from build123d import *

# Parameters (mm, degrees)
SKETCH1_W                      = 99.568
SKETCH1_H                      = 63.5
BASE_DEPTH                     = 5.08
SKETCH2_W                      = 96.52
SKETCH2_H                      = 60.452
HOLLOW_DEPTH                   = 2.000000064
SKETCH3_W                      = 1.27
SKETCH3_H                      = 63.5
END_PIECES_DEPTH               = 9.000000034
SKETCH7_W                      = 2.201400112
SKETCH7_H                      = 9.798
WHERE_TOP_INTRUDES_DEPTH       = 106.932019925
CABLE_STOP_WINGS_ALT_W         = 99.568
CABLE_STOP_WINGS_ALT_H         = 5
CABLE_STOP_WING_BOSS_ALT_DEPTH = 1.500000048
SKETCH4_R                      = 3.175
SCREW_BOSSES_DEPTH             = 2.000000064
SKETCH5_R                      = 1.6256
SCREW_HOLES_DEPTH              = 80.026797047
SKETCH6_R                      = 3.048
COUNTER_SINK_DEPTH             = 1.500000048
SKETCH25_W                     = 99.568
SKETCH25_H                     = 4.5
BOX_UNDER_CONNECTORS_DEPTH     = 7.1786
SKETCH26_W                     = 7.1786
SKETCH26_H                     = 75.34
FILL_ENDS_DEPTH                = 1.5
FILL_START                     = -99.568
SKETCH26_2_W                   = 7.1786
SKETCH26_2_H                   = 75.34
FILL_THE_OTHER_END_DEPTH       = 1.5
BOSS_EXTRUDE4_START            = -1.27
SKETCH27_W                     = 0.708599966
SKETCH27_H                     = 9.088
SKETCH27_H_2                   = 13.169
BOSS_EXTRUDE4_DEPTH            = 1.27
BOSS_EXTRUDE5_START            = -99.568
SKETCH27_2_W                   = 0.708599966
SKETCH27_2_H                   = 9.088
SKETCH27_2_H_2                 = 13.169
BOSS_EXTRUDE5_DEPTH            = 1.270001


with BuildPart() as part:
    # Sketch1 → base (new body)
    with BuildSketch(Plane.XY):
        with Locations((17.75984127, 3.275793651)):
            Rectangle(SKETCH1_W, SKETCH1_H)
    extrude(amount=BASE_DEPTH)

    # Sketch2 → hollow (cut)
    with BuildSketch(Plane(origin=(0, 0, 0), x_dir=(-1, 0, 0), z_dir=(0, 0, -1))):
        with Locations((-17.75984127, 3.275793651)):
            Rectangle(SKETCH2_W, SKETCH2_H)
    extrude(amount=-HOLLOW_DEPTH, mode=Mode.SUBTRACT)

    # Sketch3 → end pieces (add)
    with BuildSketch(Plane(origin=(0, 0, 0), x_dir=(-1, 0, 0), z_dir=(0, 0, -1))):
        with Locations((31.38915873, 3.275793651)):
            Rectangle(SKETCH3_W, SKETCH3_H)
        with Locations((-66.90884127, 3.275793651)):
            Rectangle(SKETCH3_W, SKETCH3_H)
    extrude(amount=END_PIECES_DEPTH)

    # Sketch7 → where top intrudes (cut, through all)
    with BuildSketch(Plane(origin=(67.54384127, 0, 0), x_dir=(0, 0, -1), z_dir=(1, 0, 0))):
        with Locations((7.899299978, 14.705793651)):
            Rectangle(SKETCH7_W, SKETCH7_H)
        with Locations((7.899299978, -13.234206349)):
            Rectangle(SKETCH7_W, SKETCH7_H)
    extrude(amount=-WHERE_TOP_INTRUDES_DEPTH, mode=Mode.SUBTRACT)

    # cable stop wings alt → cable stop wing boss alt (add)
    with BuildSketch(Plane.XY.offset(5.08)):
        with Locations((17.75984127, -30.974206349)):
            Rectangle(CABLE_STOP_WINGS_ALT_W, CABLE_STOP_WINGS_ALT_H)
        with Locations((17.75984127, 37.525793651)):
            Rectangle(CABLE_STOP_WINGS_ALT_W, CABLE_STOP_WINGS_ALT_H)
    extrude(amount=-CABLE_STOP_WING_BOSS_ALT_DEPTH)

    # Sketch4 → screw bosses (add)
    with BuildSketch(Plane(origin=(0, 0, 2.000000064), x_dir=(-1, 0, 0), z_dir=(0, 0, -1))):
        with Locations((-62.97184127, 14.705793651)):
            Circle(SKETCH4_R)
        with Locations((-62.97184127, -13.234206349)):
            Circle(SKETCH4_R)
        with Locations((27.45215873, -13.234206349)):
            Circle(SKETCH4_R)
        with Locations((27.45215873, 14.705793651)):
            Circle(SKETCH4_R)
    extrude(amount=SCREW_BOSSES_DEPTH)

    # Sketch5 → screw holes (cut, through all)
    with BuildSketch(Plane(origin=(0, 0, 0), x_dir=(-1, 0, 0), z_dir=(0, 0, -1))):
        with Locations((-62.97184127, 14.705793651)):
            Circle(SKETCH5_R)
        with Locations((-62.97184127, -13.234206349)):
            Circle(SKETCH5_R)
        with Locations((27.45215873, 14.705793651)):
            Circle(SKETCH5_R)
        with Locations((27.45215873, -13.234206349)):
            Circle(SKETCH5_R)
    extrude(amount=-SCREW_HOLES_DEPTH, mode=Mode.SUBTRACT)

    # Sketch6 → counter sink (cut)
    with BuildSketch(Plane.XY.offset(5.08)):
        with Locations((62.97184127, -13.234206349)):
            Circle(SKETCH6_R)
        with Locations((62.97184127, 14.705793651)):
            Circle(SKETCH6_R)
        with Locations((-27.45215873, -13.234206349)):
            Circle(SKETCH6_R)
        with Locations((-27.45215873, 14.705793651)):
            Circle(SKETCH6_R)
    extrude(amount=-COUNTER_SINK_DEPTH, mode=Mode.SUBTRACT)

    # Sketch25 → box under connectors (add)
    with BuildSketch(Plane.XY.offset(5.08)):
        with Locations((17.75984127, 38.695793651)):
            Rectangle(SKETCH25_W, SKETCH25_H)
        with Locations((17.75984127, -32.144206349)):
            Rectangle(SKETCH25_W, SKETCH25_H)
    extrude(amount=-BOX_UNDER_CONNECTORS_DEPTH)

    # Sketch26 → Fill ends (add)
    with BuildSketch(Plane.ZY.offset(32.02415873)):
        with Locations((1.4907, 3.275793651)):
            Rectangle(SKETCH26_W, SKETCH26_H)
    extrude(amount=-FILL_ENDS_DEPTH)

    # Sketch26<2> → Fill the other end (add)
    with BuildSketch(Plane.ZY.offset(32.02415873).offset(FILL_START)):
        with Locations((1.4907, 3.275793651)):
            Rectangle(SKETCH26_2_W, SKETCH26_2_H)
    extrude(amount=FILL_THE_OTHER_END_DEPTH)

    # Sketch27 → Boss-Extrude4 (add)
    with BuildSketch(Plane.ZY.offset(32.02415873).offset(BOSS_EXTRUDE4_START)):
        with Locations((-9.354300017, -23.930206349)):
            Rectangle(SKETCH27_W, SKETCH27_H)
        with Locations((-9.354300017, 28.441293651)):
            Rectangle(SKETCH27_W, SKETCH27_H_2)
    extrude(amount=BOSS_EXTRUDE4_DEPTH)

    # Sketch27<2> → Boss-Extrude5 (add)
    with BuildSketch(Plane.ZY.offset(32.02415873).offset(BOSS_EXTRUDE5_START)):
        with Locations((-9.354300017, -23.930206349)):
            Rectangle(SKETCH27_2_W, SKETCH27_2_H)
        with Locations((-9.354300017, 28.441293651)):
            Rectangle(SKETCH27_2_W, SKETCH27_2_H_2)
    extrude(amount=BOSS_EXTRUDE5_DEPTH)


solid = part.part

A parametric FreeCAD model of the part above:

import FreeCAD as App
import Part
import Sketcher
from FreeCAD import Vector
Q = App.Units.Quantity

doc = App.newDocument("Part")
body = doc.addObject("PartDesign::Body", "Body")

sketch1 = body.newObject("Sketcher::SketchObject", "Sketch")
sketch1.AttachmentSupport = (doc.getObject("XY_Plane"), [""])
sketch1.MapMode = "FlatFace"
sketch1.addGeometry([
    Part.LineSegment(Vector(-32, 35, 0), Vector(-32, -28, 0)),
    Part.LineSegment(Vector(-32, -28, 0), Vector(68, -28, 0)),
    Part.LineSegment(Vector(68, -28, 0), Vector(68, 35, 0)),
    Part.LineSegment(Vector(68, 35, 0), Vector(-32, 35, 0)),
], False)
sketch1.addConstraint([
    Sketcher.Constraint("Coincident", 0, 2, 1, 1),
    Sketcher.Constraint("Coincident", 1, 2, 2, 1),
    Sketcher.Constraint("Coincident", 2, 2, 3, 1),
    Sketcher.Constraint("Coincident", 3, 2, 0, 1),
    Sketcher.Constraint("Vertical", 0),
    Sketcher.Constraint("Horizontal", 1),
    Sketcher.Constraint("Vertical", 2),
    Sketcher.Constraint("Horizontal", 3),
    Sketcher.Constraint("DistanceY", 0, 2, 0, 1, Q("2.5 in")),
    Sketcher.Constraint("DistanceX", 1, 1, 1, 2, Q("3.92 in")),
    Sketcher.Constraint("DistanceX", 0, 2, -1, 1, Q("32.024159 mm")),
    Sketcher.Constraint("DistanceY", 0, 2, -1, 1, Q("28.474206 mm")),
])
pad1 = body.newObject("PartDesign::Pad", "Pad")
pad1.Profile = sketch1
pad1.Length = Q("0.2 in")

sketch2 = body.newObject("Sketcher::SketchObject", "Sketch001")
sketch2.AttachmentSupport = (doc.getObject("XY_Plane"), [""])
sketch2.MapMode = "FlatFace"
sketch2.addGeometry([
    Part.LineSegment(Vector(66, 34, 0), Vector(66, -27, 0)),
    Part.LineSegment(Vector(66, -27, 0), Vector(-31, -27, 0)),
    Part.LineSegment(Vector(-31, -27, 0), Vector(-31, 34, 0)),
    Part.LineSegment(Vector(-31, 34, 0), Vector(66, 34, 0)),
], False)
sketch2.addConstraint([
    Sketcher.Constraint("Coincident", 0, 2, 1, 1),
    Sketcher.Constraint("Coincident", 1, 2, 2, 1),
    Sketcher.Constraint("Coincident", 2, 2, 3, 1),
    Sketcher.Constraint("Coincident", 3, 2, 0, 1),
    Sketcher.Constraint("Vertical", 0),
    Sketcher.Constraint("Horizontal", 1),
    Sketcher.Constraint("Vertical", 2),
    Sketcher.Constraint("Horizontal", 3),
    Sketcher.Constraint("DistanceX", 1, 2, 1, 1, Q("3.8 in")),
    Sketcher.Constraint("DistanceY", 0, 2, 0, 1, Q("2.38 in")),
    Sketcher.Constraint("DistanceX", -1, 1, 0, 2, Q("66.019841 mm")),
    Sketcher.Constraint("DistanceY", 0, 2, -1, 1, Q("26.950206 mm")),
])
pocket1 = body.newObject("PartDesign::Pocket", "Pocket")
pocket1.Profile = sketch2
pocket1.Length = 2
pocket1.Reversed = True

sketch3 = body.newObject("Sketcher::SketchObject", "Sketch002")
sketch3.AttachmentSupport = (doc.getObject("XY_Plane"), [""])
sketch3.MapMode = "FlatFace"
sketch3.addGeometry([
    Part.LineSegment(Vector(-30.8, 35, 0), Vector(-30.8, -28.5, 0)),
    Part.LineSegment(Vector(-30.8, -28.5, 0), Vector(-32, -28.5, 0)),
    Part.LineSegment(Vector(-32, -28.5, 0), Vector(-32, 35, 0)),
    Part.LineSegment(Vector(-32, 35, 0), Vector(-30.8, 35, 0)),
    Part.LineSegment(Vector(67.5, 35, 0), Vector(67.5, -28.5, 0)),
    Part.LineSegment(Vector(67.5, -28.5, 0), Vector(66.3, -28.5, 0)),
    Part.LineSegment(Vector(66.3, -28.5, 0), Vector(66.3, 35, 0)),
    Part.LineSegment(Vector(66.3, 35, 0), Vector(67.5, 35, 0)),
], False)
sketch3.addConstraint([
    Sketcher.Constraint("Coincident", 0, 2, 1, 1),
    Sketcher.Constraint("Coincident", 1, 2, 2, 1),
    Sketcher.Constraint("Coincident", 2, 2, 3, 1),
    Sketcher.Constraint("Coincident", 3, 2, 0, 1),
    Sketcher.Constraint("Coincident", 4, 2, 5, 1),
    Sketcher.Constraint("Coincident", 5, 2, 6, 1),
    Sketcher.Constraint("Coincident", 6, 2, 7, 1),
    Sketcher.Constraint("Coincident", 7, 2, 4, 1),
    Sketcher.Constraint("Vertical", 0),
    Sketcher.Constraint("Horizontal", 1),
    Sketcher.Constraint("Vertical", 2),
    Sketcher.Constraint("Horizontal", 3),
    Sketcher.Constraint("Vertical", 4),
    Sketcher.Constraint("Horizontal", 5),
    Sketcher.Constraint("Vertical", 6),
    Sketcher.Constraint("Horizontal", 7),
    Sketcher.Constraint("Horizontal", 1, 2, 4, 2),
    Sketcher.Constraint("Horizontal", 3, 2, 6, 2),
    Sketcher.Constraint("Equal", 3, 5),
    Sketcher.Constraint("DistanceY", 0, 2, 0, 1, Q("2.5 in")),
    Sketcher.Constraint("DistanceX", 1, 2, 1, 1, Q("0.05 in")),
    Sketcher.Constraint("DistanceX", 0, 2, 4, 2, Q("3.87 in")),
    Sketcher.Constraint("DistanceX", 0, 2, -1, 1, Q("30.754159 mm")),
    Sketcher.Constraint("DistanceY", 0, 2, -1, 1, Q("28.474206 mm")),
])
pad2 = body.newObject("PartDesign::Pad", "Pad001")
pad2.Profile = sketch3
pad2.Length = 9
pad2.Reversed = True

sketch4 = body.newObject("Sketcher::SketchObject", "Sketch003")
sketch4.AttachmentSupport = (doc.getObject("YZ_Plane"), [""])
sketch4.MapMode = "FlatFace"
sketch4.AttachmentOffset = App.Placement(Vector(0, 0, 67.543841), App.Rotation())
sketch4.addGeometry([
    Part.LineSegment(Vector(19.6, -6.8, 0), Vector(9.8, -6.8, 0)),
    Part.LineSegment(Vector(9.8, -6.8, 0), Vector(9.8, -9, 0)),
    Part.LineSegment(Vector(9.8, -9, 0), Vector(19.6, -9, 0)),
    Part.LineSegment(Vector(19.6, -9, 0), Vector(19.6, -6.8, 0)),
    Part.LineSegment(Vector(-8.3, -6.8, 0), Vector(-18.1, -6.8, 0)),
    Part.LineSegment(Vector(-18.1, -6.8, 0), Vector(-18.1, -9, 0)),
    Part.LineSegment(Vector(-18.1, -9, 0), Vector(-8.3, -9, 0)),
    Part.LineSegment(Vector(-8.3, -9, 0), Vector(-8.3, -6.8, 0)),
], False)
sketch4.addConstraint([
    Sketcher.Constraint("Coincident", 0, 2, 1, 1),
    Sketcher.Constraint("Coincident", 1, 2, 2, 1),
    Sketcher.Constraint("Coincident", 2, 2, 3, 1),
    Sketcher.Constraint("Coincident", 3, 2, 0, 1),
    Sketcher.Constraint("Coincident", 4, 2, 5, 1),
    Sketcher.Constraint("Coincident", 5, 2, 6, 1),
    Sketcher.Constraint("Coincident", 6, 2, 7, 1),
    Sketcher.Constraint("Coincident", 7, 2, 4, 1),
    Sketcher.Constraint("Horizontal", 0),
    Sketcher.Constraint("Vertical", 1),
    Sketcher.Constraint("Horizontal", 2),
    Sketcher.Constraint("Vertical", 3),
    Sketcher.Constraint("Horizontal", 4),
    Sketcher.Constraint("Vertical", 5),
    Sketcher.Constraint("Horizontal", 6),
    Sketcher.Constraint("Vertical", 7),
    Sketcher.Constraint("Horizontal", 3, 2, 4, 2),
    Sketcher.Constraint("Horizontal", 2, 2, 5, 2),
    Sketcher.Constraint("Equal", 2, 4),
    Sketcher.Constraint("DistanceX", 4, 2, 0, 2, Q("1.1 in")),
    Sketcher.Constraint("DistanceX", 0, 2, 0, 1, Q("9.798 mm")),
    Sketcher.Constraint("DistanceY", 1, 2, 1, 1, Q("2.2014 mm")),
    Sketcher.Constraint("DistanceY", 0, 2, -1, 1, Q("6.7986 mm")),
    Sketcher.Constraint("DistanceX", -1, 1, 0, 2, Q("9.806794 mm")),
])
pocket2 = body.newObject("PartDesign::Pocket", "Pocket001")
pocket2.Profile = sketch4
pocket2.Type = "ThroughAll"

sketch5 = body.newObject("Sketcher::SketchObject", "Sketch004")
sketch5.AttachmentSupport = (doc.getObject("XY_Plane"), [""])
sketch5.MapMode = "FlatFace"
sketch5.AttachmentOffset = App.Placement(Vector(0, 0, 0.2 * 25.4), App.Rotation())
sketch5.addGeometry([
    Part.LineSegment(Vector(-32, -28, 0), Vector(-32, -33, 0)),
    Part.LineSegment(Vector(-32, -33, 0), Vector(68, -33, 0)),
    Part.LineSegment(Vector(68, -33, 0), Vector(68, -28, 0)),
    Part.LineSegment(Vector(68, -28, 0), Vector(-32, -28, 0)),
    Part.LineSegment(Vector(-32, 40, 0), Vector(-32, 35, 0)),
    Part.LineSegment(Vector(-32, 35, 0), Vector(68, 35, 0)),
    Part.LineSegment(Vector(68, 35, 0), Vector(68, 40, 0)),
    Part.LineSegment(Vector(68, 40, 0), Vector(-32, 40, 0)),
], False)
sketch5.addConstraint([
    Sketcher.Constraint("Coincident", 0, 2, 1, 1),
    Sketcher.Constraint("Coincident", 1, 2, 2, 1),
    Sketcher.Constraint("Coincident", 2, 2, 3, 1),
    Sketcher.Constraint("Coincident", 3, 2, 0, 1),
    Sketcher.Constraint("Coincident", 4, 2, 5, 1),
    Sketcher.Constraint("Coincident", 5, 2, 6, 1),
    Sketcher.Constraint("Coincident", 6, 2, 7, 1),
    Sketcher.Constraint("Coincident", 7, 2, 4, 1),
    Sketcher.Constraint("Vertical", 0),
    Sketcher.Constraint("Horizontal", 1),
    Sketcher.Constraint("Vertical", 2),
    Sketcher.Constraint("Horizontal", 3),
    Sketcher.Constraint("Vertical", 4),
    Sketcher.Constraint("Horizontal", 5),
    Sketcher.Constraint("Vertical", 6),
    Sketcher.Constraint("Horizontal", 7),
    Sketcher.Constraint("Vertical", 3, 2, 4, 2),
    Sketcher.Constraint("Vertical", 2, 2, 5, 2),
    Sketcher.Constraint("Equal", 2, 4),
    Sketcher.Constraint("DistanceX", 1, 1, 1, 2, Q("3.92 in")),
    Sketcher.Constraint("DistanceY", 3, 2, 4, 2, Q("2.5 in")),
    Sketcher.Constraint("DistanceY", 0, 2, 0, 1, Q("5 mm")),
    Sketcher.Constraint("DistanceX", 0, 2, -1, 1, Q("32.024159 mm")),
    Sketcher.Constraint("DistanceY", 0, 2, -1, 1, Q("33.474206 mm")),
])
pad3 = body.newObject("PartDesign::Pad", "Pad002")
pad3.Profile = sketch5
pad3.Length = 1.5
pad3.Reversed = True

sketch6 = body.newObject("Sketcher::SketchObject", "Sketch005")
sketch6.AttachmentSupport = (doc.getObject("XY_Plane"), [""])
sketch6.MapMode = "FlatFace"
sketch6.AttachmentOffset = App.Placement(Vector(0, 0, 2), App.Rotation())
sketch6.addGeometry([
    Part.Circle(Vector(63, 14.7, 0), Vector(0, 0, 1), 3.2),
    Part.Circle(Vector(63, -13.2, 0), Vector(0, 0, 1), 3.2),
    Part.Circle(Vector(-27.5, -13.2, 0), Vector(0, 0, 1), 3.2),
    Part.Circle(Vector(-27.5, 14.7, 0), Vector(0, 0, 1), 3.2),
], False)
sketch6.addConstraint([
    Sketcher.Constraint("Equal", 0, 1),
    Sketcher.Constraint("Equal", 1, 2),
    Sketcher.Constraint("Equal", 2, 3),
    Sketcher.Constraint("Horizontal", 1, 3, 2, 3),
    Sketcher.Constraint("Horizontal", 0, 3, 3, 3),
    Sketcher.Constraint("Vertical", 0, 3, 1, 3),
    Sketcher.Constraint("Vertical", 2, 3, 3, 3),
    Sketcher.Constraint("Diameter", 0, Q("0.25 in")),
    Sketcher.Constraint("DistanceY", 1, 3, 0, 3, Q("1.1 in")),
    Sketcher.Constraint("DistanceX", 2, 3, 1, 3, Q("3.56 in")),
    Sketcher.Constraint("DistanceX", -1, 1, 0, 3, Q("62.971841 mm")),
    Sketcher.Constraint("DistanceY", -1, 1, 0, 3, Q("14.705794 mm")),
])
pad4 = body.newObject("PartDesign::Pad", "Pad003")
pad4.Profile = sketch6
pad4.Length = 2
pad4.Reversed = True

sketch7 = body.newObject("Sketcher::SketchObject", "Sketch006")
sketch7.AttachmentSupport = (doc.getObject("XY_Plane"), [""])
sketch7.MapMode = "FlatFace"
sketch7.addGeometry([
    Part.Circle(Vector(63, 14.7, 0), Vector(0, 0, 1), 1.6),
    Part.Circle(Vector(63, -13.2, 0), Vector(0, 0, 1), 1.6),
    Part.Circle(Vector(-27.5, 14.7, 0), Vector(0, 0, 1), 1.6),
    Part.Circle(Vector(-27.5, -13.2, 0), Vector(0, 0, 1), 1.6),
], False)
sketch7.addConstraint([
    Sketcher.Constraint("Equal", 0, 1),
    Sketcher.Constraint("Equal", 1, 2),
    Sketcher.Constraint("Equal", 2, 3),
    Sketcher.Constraint("Horizontal", 0, 3, 2, 3),
    Sketcher.Constraint("Horizontal", 1, 3, 3, 3),
    Sketcher.Constraint("Vertical", 0, 3, 1, 3),
    Sketcher.Constraint("Vertical", 2, 3, 3, 3),
    Sketcher.Constraint("Diameter", 0, Q("0.128 in")),
    Sketcher.Constraint("DistanceY", 1, 3, 0, 3, Q("1.1 in")),
    Sketcher.Constraint("DistanceX", 2, 3, 0, 3, Q("3.56 in")),
    Sketcher.Constraint("DistanceX", -1, 1, 0, 3, Q("62.971841 mm")),
    Sketcher.Constraint("DistanceY", -1, 1, 0, 3, Q("14.705794 mm")),
])
pocket3 = body.newObject("PartDesign::Pocket", "Pocket002")
pocket3.Profile = sketch7
pocket3.Type = "ThroughAll"
pocket3.Reversed = True

sketch8 = body.newObject("Sketcher::SketchObject", "Sketch007")
sketch8.AttachmentSupport = (doc.getObject("XY_Plane"), [""])
sketch8.MapMode = "FlatFace"
sketch8.AttachmentOffset = App.Placement(Vector(0, 0, 0.2 * 25.4), App.Rotation())
sketch8.addGeometry([
    Part.Circle(Vector(63, -13.2, 0), Vector(0, 0, 1), 3),
    Part.Circle(Vector(63, 14.7, 0), Vector(0, 0, 1), 3),
    Part.Circle(Vector(-27.5, -13.2, 0), Vector(0, 0, 1), 3),
    Part.Circle(Vector(-27.5, 14.7, 0), Vector(0, 0, 1), 3),
], False)
sketch8.addConstraint([
    Sketcher.Constraint("Equal", 0, 1),
    Sketcher.Constraint("Equal", 1, 2),
    Sketcher.Constraint("Equal", 2, 3),
    Sketcher.Constraint("Horizontal", 0, 3, 2, 3),
    Sketcher.Constraint("Horizontal", 1, 3, 3, 3),
    Sketcher.Constraint("Vertical", 0, 3, 1, 3),
    Sketcher.Constraint("Vertical", 2, 3, 3, 3),
    Sketcher.Constraint("Diameter", 0, Q("0.24 in")),
    Sketcher.Constraint("DistanceY", 0, 3, 1, 3, Q("1.1 in")),
    Sketcher.Constraint("DistanceX", 2, 3, 0, 3, Q("3.56 in")),
    Sketcher.Constraint("DistanceX", -1, 1, 0, 3, Q("62.971841 mm")),
    Sketcher.Constraint("DistanceY", 0, 3, -1, 1, Q("13.234206 mm")),
])
pocket4 = body.newObject("PartDesign::Pocket", "Pocket003")
pocket4.Profile = sketch8
pocket4.Length = 1.5

sketch9 = body.newObject("Sketcher::SketchObject", "Sketch008")
sketch9.AttachmentSupport = (doc.getObject("XY_Plane"), [""])
sketch9.MapMode = "FlatFace"
sketch9.AttachmentOffset = App.Placement(Vector(0, 0, 0.2 * 25.4), App.Rotation())
sketch9.addGeometry([
    Part.LineSegment(Vector(-32, 40.9, 0), Vector(-32, 36.4, 0)),
    Part.LineSegment(Vector(-32, 36.4, 0), Vector(67.5, 36.4, 0)),
    Part.LineSegment(Vector(67.5, 36.4, 0), Vector(67.5, 40.9, 0)),
    Part.LineSegment(Vector(67.5, 40.9, 0), Vector(-32, 40.9, 0)),
    Part.LineSegment(Vector(-32, -29.9, 0), Vector(-32, -34.4, 0)),
    Part.LineSegment(Vector(-32, -34.4, 0), Vector(67.5, -34.4, 0)),
    Part.LineSegment(Vector(67.5, -34.4, 0), Vector(67.5, -29.9, 0)),
    Part.LineSegment(Vector(67.5, -29.9, 0), Vector(-32, -29.9, 0)),
], False)
sketch9.addConstraint([
    Sketcher.Constraint("Coincident", 0, 2, 1, 1),
    Sketcher.Constraint("Coincident", 1, 2, 2, 1),
    Sketcher.Constraint("Coincident", 2, 2, 3, 1),
    Sketcher.Constraint("Coincident", 3, 2, 0, 1),
    Sketcher.Constraint("Coincident", 4, 2, 5, 1),
    Sketcher.Constraint("Coincident", 5, 2, 6, 1),
    Sketcher.Constraint("Coincident", 6, 2, 7, 1),
    Sketcher.Constraint("Coincident", 7, 2, 4, 1),
    Sketcher.Constraint("Vertical", 0),
    Sketcher.Constraint("Horizontal", 1),
    Sketcher.Constraint("Vertical", 2),
    Sketcher.Constraint("Horizontal", 3),
    Sketcher.Constraint("Vertical", 4),
    Sketcher.Constraint("Horizontal", 5),
    Sketcher.Constraint("Vertical", 6),
    Sketcher.Constraint("Horizontal", 7),
    Sketcher.Constraint("Vertical", 3, 2, 4, 2),
    Sketcher.Constraint("Vertical", 2, 2, 5, 2),
    Sketcher.Constraint("Equal", 2, 4),
    Sketcher.Constraint("DistanceX", 1, 1, 1, 2, Q("3.92 in")),
    Sketcher.Constraint("DistanceY", 0, 2, 0, 1, Q("4.5 mm")),
    Sketcher.Constraint("DistanceY", 4, 2, 0, 2, Q("70.84 mm")),
    Sketcher.Constraint("DistanceX", 0, 2, -1, 1, Q("32.024159 mm")),
    Sketcher.Constraint("DistanceY", -1, 1, 0, 2, Q("36.445794 mm")),
])
pad5 = body.newObject("PartDesign::Pad", "Pad004")
pad5.Profile = sketch9
pad5.Length = 7.1786
pad5.Reversed = True

sketch10 = body.newObject("Sketcher::SketchObject", "Sketch009")
sketch10.AttachmentSupport = (doc.getObject("YZ_Plane"), [""])
sketch10.MapMode = "FlatFace"
sketch10.AttachmentOffset = App.Placement(Vector(0, 0, -32.024159), App.Rotation())
sketch10.addGeometry([
    Part.LineSegment(Vector(41, -2, 0), Vector(-34, -2, 0)),
    Part.LineSegment(Vector(-34, -2, 0), Vector(-34, 5, 0)),
    Part.LineSegment(Vector(-34, 5, 0), Vector(41, 5, 0)),
    Part.LineSegment(Vector(41, 5, 0), Vector(41, -2, 0)),
], False)
sketch10.addConstraint([
    Sketcher.Constraint("Coincident", 0, 2, 1, 1),
    Sketcher.Constraint("Coincident", 1, 2, 2, 1),
    Sketcher.Constraint("Coincident", 2, 2, 3, 1),
    Sketcher.Constraint("Coincident", 3, 2, 0, 1),
    Sketcher.Constraint("Horizontal", 0),
    Sketcher.Constraint("Vertical", 1),
    Sketcher.Constraint("Horizontal", 2),
    Sketcher.Constraint("Vertical", 3),
    Sketcher.Constraint("DistanceY", -1, 1, 1, 2, Q("0.2 in")),
    Sketcher.Constraint("DistanceX", 0, 2, 0, 1, Q("75.34 mm")),
    Sketcher.Constraint("DistanceY", 1, 1, 1, 2, Q("7.1786 mm")),
    Sketcher.Constraint("DistanceX", 0, 2, -1, 1, Q("34.394206 mm")),
])
pad6 = body.newObject("PartDesign::Pad", "Pad005")
pad6.Profile = sketch10
pad6.Length = 1.5

sketch11 = body.newObject("Sketcher::SketchObject", "Sketch010")
sketch11.AttachmentSupport = (doc.getObject("YZ_Plane"), [""])
sketch11.MapMode = "FlatFace"
sketch11.AttachmentOffset = App.Placement(Vector(0, 0, 67.543841), App.Rotation())
sketch11.addGeometry([
    Part.LineSegment(Vector(41, -2, 0), Vector(-34, -2, 0)),
    Part.LineSegment(Vector(-34, -2, 0), Vector(-34, 5, 0)),
    Part.LineSegment(Vector(-34, 5, 0), Vector(41, 5, 0)),
    Part.LineSegment(Vector(41, 5, 0), Vector(41, -2, 0)),
], False)
sketch11.addConstraint([
    Sketcher.Constraint("Coincident", 0, 2, 1, 1),
    Sketcher.Constraint("Coincident", 1, 2, 2, 1),
    Sketcher.Constraint("Coincident", 2, 2, 3, 1),
    Sketcher.Constraint("Coincident", 3, 2, 0, 1),
    Sketcher.Constraint("Horizontal", 0),
    Sketcher.Constraint("Vertical", 1),
    Sketcher.Constraint("Horizontal", 2),
    Sketcher.Constraint("Vertical", 3),
    Sketcher.Constraint("DistanceY", -1, 1, 1, 2, Q("0.2 in")),
    Sketcher.Constraint("DistanceX", 0, 2, 0, 1, Q("75.34 mm")),
    Sketcher.Constraint("DistanceY", 1, 1, 1, 2, Q("7.1786 mm")),
    Sketcher.Constraint("DistanceX", 0, 2, -1, 1, Q("34.394206 mm")),
])
pad7 = body.newObject("PartDesign::Pad", "Pad006")
pad7.Profile = sketch11
pad7.Length = 1.5
pad7.Reversed = True

sketch12 = body.newObject("Sketcher::SketchObject", "Sketch011")
sketch12.AttachmentSupport = (doc.getObject("YZ_Plane"), [""])
sketch12.MapMode = "FlatFace"
sketch12.AttachmentOffset = App.Placement(Vector(0, 0, -30.754159), App.Rotation())
sketch12.addGeometry([
    Part.LineSegment(Vector(-19.4, -9.7, 0), Vector(-28.5, -9.7, 0)),
    Part.LineSegment(Vector(-28.5, -9.7, 0), Vector(-28.5, -9, 0)),
    Part.LineSegment(Vector(-28.5, -9, 0), Vector(-19.4, -9, 0)),
    Part.LineSegment(Vector(-19.4, -9, 0), Vector(-19.4, -9.7, 0)),
    Part.LineSegment(Vector(35, -9.7, 0), Vector(21.9, -9.7, 0)),
    Part.LineSegment(Vector(21.9, -9.7, 0), Vector(21.9, -9, 0)),
    Part.LineSegment(Vector(21.9, -9, 0), Vector(35, -9, 0)),
    Part.LineSegment(Vector(35, -9, 0), Vector(35, -9.7, 0)),
], False)
sketch12.addConstraint([
    Sketcher.Constraint("Coincident", 0, 2, 1, 1),
    Sketcher.Constraint("Coincident", 1, 2, 2, 1),
    Sketcher.Constraint("Coincident", 2, 2, 3, 1),
    Sketcher.Constraint("Coincident", 3, 2, 0, 1),
    Sketcher.Constraint("Coincident", 4, 2, 5, 1),
    Sketcher.Constraint("Coincident", 5, 2, 6, 1),
    Sketcher.Constraint("Coincident", 6, 2, 7, 1),
    Sketcher.Constraint("Coincident", 7, 2, 4, 1),
    Sketcher.Constraint("Horizontal", 0),
    Sketcher.Constraint("Vertical", 1),
    Sketcher.Constraint("Horizontal", 2),
    Sketcher.Constraint("Vertical", 3),
    Sketcher.Constraint("Horizontal", 4),
    Sketcher.Constraint("Vertical", 5),
    Sketcher.Constraint("Horizontal", 6),
    Sketcher.Constraint("Vertical", 7),
    Sketcher.Constraint("Horizontal", 3, 2, 4, 2),
    Sketcher.Constraint("Horizontal", 2, 2, 5, 2),
    Sketcher.Constraint("DistanceX", 1, 2, 6, 2, Q("2.5 in")),
    Sketcher.Constraint("DistanceX", 0, 2, 0, 1, Q("9.088 mm")),
    Sketcher.Constraint("DistanceX", 4, 2, 4, 1, Q("13.169 mm")),
    Sketcher.Constraint("DistanceY", 1, 1, 1, 2, Q("0.7086 mm")),
    Sketcher.Constraint("DistanceY", 0, 2, -1, 1, Q("9.7086 mm")),
    Sketcher.Constraint("DistanceX", 0, 2, -1, 1, Q("28.474206 mm")),
])
pad8 = body.newObject("PartDesign::Pad", "Pad007")
pad8.Profile = sketch12
pad8.Length = Q("0.05 in")
pad8.Reversed = True

sketch13 = body.newObject("Sketcher::SketchObject", "Sketch012")
sketch13.AttachmentSupport = (doc.getObject("YZ_Plane"), [""])
sketch13.MapMode = "FlatFace"
sketch13.AttachmentOffset = App.Placement(Vector(0, 0, 67.543841), App.Rotation())
sketch13.addGeometry([
    Part.LineSegment(Vector(-19.4, -9.7, 0), Vector(-28.5, -9.7, 0)),
    Part.LineSegment(Vector(-28.5, -9.7, 0), Vector(-28.5, -9, 0)),
    Part.LineSegment(Vector(-28.5, -9, 0), Vector(-19.4, -9, 0)),
    Part.LineSegment(Vector(-19.4, -9, 0), Vector(-19.4, -9.7, 0)),
    Part.LineSegment(Vector(35, -9.7, 0), Vector(21.9, -9.7, 0)),
    Part.LineSegment(Vector(21.9, -9.7, 0), Vector(21.9, -9, 0)),
    Part.LineSegment(Vector(21.9, -9, 0), Vector(35, -9, 0)),
    Part.LineSegment(Vector(35, -9, 0), Vector(35, -9.7, 0)),
], False)
sketch13.addConstraint([
    Sketcher.Constraint("Coincident", 0, 2, 1, 1),
    Sketcher.Constraint("Coincident", 1, 2, 2, 1),
    Sketcher.Constraint("Coincident", 2, 2, 3, 1),
    Sketcher.Constraint("Coincident", 3, 2, 0, 1),
    Sketcher.Constraint("Coincident", 4, 2, 5, 1),
    Sketcher.Constraint("Coincident", 5, 2, 6, 1),
    Sketcher.Constraint("Coincident", 6, 2, 7, 1),
    Sketcher.Constraint("Coincident", 7, 2, 4, 1),
    Sketcher.Constraint("Horizontal", 0),
    Sketcher.Constraint("Vertical", 1),
    Sketcher.Constraint("Horizontal", 2),
    Sketcher.Constraint("Vertical", 3),
    Sketcher.Constraint("Horizontal", 4),
    Sketcher.Constraint("Vertical", 5),
    Sketcher.Constraint("Horizontal", 6),
    Sketcher.Constraint("Vertical", 7),
    Sketcher.Constraint("Horizontal", 3, 2, 4, 2),
    Sketcher.Constraint("Horizontal", 2, 2, 5, 2),
    Sketcher.Constraint("DistanceX", 1, 2, 6, 2, Q("2.5 in")),
    Sketcher.Constraint("DistanceX", 0, 2, 0, 1, Q("9.088 mm")),
    Sketcher.Constraint("DistanceX", 4, 2, 4, 1, Q("13.169 mm")),
    Sketcher.Constraint("DistanceY", 1, 1, 1, 2, Q("0.7086 mm")),
    Sketcher.Constraint("DistanceY", 0, 2, -1, 1, Q("9.7086 mm")),
    Sketcher.Constraint("DistanceX", 0, 2, -1, 1, Q("28.474206 mm")),
])
pad9 = body.newObject("PartDesign::Pad", "Pad008")
pad9.Profile = sketch13
pad9.Length = Q("0.05 in")
pad9.Reversed = True

doc.recompute()
